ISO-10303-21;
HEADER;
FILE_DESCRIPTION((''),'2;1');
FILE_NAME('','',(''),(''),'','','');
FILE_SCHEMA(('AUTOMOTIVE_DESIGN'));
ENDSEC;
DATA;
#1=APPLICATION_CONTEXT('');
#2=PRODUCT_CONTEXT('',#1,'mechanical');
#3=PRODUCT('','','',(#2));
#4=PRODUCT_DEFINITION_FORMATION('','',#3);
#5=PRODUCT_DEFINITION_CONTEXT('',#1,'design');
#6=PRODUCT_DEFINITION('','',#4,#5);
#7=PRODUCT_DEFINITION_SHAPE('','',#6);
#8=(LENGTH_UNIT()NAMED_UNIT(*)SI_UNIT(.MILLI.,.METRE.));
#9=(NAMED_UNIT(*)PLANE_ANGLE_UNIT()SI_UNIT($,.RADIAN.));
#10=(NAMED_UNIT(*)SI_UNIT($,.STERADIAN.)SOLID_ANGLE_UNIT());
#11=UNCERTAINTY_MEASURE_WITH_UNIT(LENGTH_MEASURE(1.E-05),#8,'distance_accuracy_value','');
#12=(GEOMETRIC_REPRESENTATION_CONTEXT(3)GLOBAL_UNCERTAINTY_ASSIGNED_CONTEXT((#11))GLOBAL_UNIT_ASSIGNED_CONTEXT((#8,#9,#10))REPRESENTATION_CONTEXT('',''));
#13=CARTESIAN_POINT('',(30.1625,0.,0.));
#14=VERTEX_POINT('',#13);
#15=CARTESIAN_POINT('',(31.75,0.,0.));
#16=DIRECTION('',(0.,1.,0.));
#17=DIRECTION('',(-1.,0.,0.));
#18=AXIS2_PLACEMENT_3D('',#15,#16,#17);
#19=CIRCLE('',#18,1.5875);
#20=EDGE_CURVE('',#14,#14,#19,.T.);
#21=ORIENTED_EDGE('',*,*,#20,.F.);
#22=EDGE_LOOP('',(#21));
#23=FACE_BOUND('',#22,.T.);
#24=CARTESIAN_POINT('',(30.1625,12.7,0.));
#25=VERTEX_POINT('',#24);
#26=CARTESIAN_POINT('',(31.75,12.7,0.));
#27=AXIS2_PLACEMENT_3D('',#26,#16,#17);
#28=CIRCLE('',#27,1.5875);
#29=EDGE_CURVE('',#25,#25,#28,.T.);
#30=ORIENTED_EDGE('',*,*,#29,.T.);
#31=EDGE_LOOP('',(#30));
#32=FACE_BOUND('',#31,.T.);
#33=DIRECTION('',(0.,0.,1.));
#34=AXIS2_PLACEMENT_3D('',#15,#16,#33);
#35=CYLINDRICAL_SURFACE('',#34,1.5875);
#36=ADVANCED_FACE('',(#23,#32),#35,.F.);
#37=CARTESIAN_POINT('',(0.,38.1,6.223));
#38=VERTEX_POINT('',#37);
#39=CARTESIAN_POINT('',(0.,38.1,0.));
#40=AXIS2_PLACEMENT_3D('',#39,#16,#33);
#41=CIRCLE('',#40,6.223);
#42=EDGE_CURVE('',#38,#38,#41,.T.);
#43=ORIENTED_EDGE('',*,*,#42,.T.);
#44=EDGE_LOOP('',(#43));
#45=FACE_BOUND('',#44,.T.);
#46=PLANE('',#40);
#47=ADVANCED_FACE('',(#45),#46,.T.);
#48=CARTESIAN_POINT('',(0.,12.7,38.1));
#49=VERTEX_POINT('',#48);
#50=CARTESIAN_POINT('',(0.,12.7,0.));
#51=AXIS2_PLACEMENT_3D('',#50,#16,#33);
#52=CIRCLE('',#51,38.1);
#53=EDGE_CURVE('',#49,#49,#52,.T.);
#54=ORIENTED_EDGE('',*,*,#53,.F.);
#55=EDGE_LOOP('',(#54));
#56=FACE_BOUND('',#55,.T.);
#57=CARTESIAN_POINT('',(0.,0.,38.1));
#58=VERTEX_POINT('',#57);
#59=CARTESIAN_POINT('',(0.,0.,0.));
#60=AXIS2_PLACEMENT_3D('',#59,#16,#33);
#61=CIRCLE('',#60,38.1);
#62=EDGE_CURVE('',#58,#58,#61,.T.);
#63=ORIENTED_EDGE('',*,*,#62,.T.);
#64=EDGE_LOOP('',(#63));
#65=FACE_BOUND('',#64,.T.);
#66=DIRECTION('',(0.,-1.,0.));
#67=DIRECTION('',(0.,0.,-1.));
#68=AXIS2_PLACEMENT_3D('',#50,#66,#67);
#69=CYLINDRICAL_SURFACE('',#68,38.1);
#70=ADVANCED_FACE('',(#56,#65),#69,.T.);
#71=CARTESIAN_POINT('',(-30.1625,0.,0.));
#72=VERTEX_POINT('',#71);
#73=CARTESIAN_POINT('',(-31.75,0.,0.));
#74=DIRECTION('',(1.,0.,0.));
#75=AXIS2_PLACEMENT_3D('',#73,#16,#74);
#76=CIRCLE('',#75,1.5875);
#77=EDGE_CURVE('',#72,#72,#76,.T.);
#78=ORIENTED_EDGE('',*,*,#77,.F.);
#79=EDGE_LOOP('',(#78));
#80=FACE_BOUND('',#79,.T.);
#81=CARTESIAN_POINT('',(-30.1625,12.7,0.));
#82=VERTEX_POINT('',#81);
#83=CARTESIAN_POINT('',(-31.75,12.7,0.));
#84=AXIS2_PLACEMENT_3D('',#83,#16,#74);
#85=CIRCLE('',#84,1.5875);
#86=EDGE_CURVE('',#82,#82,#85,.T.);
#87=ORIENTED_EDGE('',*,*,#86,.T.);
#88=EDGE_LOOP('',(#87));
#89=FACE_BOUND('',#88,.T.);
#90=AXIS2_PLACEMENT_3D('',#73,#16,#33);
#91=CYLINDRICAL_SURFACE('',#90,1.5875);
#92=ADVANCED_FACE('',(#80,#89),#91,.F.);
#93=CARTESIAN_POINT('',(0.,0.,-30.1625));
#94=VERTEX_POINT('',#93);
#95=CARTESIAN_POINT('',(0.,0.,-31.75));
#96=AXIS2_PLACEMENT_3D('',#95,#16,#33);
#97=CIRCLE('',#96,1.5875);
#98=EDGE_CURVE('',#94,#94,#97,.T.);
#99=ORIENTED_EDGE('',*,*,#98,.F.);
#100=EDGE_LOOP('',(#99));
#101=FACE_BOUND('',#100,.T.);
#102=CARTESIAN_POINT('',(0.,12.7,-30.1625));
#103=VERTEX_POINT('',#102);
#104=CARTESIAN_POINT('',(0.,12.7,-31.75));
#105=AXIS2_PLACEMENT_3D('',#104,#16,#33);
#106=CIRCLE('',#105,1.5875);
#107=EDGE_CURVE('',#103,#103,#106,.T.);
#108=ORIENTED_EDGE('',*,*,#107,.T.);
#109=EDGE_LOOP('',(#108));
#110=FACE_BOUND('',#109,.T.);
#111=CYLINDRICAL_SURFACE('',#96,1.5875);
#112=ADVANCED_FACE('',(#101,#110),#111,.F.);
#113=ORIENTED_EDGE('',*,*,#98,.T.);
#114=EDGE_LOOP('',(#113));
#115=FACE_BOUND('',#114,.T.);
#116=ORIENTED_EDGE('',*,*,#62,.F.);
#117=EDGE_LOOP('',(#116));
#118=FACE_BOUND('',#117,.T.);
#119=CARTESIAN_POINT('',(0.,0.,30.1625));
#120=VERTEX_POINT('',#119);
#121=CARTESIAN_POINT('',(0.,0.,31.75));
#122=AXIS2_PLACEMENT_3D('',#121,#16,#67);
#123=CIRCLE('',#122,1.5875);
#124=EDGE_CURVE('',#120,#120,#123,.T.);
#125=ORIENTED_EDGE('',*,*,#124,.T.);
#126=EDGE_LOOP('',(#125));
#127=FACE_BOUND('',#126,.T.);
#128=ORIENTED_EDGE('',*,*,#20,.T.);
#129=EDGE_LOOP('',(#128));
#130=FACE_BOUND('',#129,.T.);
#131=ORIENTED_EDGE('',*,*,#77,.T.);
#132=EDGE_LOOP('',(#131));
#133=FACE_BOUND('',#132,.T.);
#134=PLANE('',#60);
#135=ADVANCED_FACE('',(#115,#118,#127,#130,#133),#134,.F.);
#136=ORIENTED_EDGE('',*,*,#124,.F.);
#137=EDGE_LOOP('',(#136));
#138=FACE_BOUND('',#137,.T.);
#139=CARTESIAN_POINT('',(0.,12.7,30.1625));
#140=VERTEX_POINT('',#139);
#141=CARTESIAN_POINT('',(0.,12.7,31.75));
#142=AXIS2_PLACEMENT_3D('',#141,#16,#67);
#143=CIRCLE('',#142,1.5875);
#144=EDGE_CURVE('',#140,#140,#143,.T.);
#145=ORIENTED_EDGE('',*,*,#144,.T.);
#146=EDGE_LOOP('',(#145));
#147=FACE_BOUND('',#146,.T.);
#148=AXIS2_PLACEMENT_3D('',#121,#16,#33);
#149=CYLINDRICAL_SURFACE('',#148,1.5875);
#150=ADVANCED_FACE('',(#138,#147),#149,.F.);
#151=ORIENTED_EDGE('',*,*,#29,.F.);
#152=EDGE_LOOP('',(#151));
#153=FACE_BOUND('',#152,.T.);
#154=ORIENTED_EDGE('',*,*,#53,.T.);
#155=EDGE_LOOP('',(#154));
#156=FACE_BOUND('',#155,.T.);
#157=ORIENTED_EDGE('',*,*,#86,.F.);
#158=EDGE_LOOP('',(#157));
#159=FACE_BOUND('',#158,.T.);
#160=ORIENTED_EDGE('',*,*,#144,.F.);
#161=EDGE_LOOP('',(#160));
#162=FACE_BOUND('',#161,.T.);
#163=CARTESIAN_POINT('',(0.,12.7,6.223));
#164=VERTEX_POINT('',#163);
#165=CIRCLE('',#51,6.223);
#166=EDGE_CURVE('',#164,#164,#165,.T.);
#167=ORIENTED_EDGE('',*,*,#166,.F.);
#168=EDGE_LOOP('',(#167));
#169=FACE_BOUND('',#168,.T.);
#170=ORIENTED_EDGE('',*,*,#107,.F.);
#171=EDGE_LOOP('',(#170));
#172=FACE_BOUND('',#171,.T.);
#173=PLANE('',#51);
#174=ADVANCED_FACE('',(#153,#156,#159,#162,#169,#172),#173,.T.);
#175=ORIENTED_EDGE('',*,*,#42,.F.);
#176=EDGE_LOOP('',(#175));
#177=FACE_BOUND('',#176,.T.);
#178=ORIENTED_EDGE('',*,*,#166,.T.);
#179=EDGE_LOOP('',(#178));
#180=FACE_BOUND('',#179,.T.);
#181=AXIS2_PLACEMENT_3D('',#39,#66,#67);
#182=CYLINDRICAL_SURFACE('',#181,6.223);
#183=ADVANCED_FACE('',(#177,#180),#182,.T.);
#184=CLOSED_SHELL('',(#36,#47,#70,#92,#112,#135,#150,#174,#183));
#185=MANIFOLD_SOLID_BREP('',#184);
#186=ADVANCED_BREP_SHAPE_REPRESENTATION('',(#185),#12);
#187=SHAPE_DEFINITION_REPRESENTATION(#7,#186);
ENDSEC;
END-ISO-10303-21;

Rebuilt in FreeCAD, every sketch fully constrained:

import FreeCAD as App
import Part
import Sketcher
Q = App.Units.Quantity

doc = App.newDocument("Part")
body = doc.addObject("PartDesign::Body", "Body")

sketch1 = body.newObject("Sketcher::SketchObject", "Sketch")
sketch1.AttachmentSupport = (doc.getObject("XZ_Plane"), [""])
sketch1.MapMode = "FlatFace"
sketch1.addGeometry(Part.Circle(App.Vector(0, 0, 0), App.Vector(0, 0, 1), 38), False)
sketch1.addConstraint([
    Sketcher.Constraint("Coincident", 0, 3, -1, 1),
    Sketcher.Constraint("Diameter", 0, Q("3 in")),
])
pad1 = body.newObject("PartDesign::Pad", "Pad")
pad1.Profile = sketch1
pad1.Length = Q("0.5 in")
pad1.Reversed = True

sketch2 = body.newObject("Sketcher::SketchObject", "Sketch001")
sketch2.AttachmentSupport = (doc.getObject("XZ_Plane"), [""])
sketch2.MapMode = "FlatFace"
sketch2.AttachmentOffset = App.Placement(App.Vector(0, 0, -0.5 * 25.4), App.Rotation())
sketch2.addGeometry(Part.Circle(App.Vector(0, 0, 0), App.Vector(0, 0, 1), 6), False)
sketch2.addConstraint([
    Sketcher.Constraint("Coincident", 0, 3, -1, 1),
    Sketcher.Constraint("Diameter", 0, Q("0.49 in")),
])
pad2 = body.newObject("PartDesign::Pad", "Pad001")
pad2.Profile = sketch2
pad2.Length = Q("1 in")
pad2.Reversed = True

sketch3 = body.newObject("Sketcher::SketchObject", "Sketch002")
sketch3.AttachmentSupport = (doc.getObject("XZ_Plane"), [""])
sketch3.MapMode = "FlatFace"
sketch3.AttachmentOffset = App.Placement(App.Vector(0, 0, -0.5 * 25.4), App.Rotation())
sketch3.addGeometry(Part.Circle(App.Vector(0, -31.8, 0), App.Vector(0, 0, 1), 1.6), False)
sketch3.addConstraint([
    Sketcher.Constraint("PointOnObject", 0, 3, -2),
    Sketcher.Constraint("Diameter", 0, Q("0.125 in")),
    Sketcher.Constraint("DistanceY", 0, 3, -1, 1, Q("1.25 in")),
])
pocket1 = body.newObject("PartDesign::Pocket", "Pocket")
pocket1.Profile = sketch3
pocket1.Type = "ThroughAll"
pocket1.Reversed = True
doc.recompute()

polarpattern = body.newObject("PartDesign::PolarPattern", "PolarPattern")
polarpattern.Originals = [pocket1]
polarpattern.Axis = (doc.getObject("Y_Axis"), [""])
polarpattern.Angle = 360
polarpattern.Occurrences = 4
body.Tip = polarpattern

doc.recompute()
